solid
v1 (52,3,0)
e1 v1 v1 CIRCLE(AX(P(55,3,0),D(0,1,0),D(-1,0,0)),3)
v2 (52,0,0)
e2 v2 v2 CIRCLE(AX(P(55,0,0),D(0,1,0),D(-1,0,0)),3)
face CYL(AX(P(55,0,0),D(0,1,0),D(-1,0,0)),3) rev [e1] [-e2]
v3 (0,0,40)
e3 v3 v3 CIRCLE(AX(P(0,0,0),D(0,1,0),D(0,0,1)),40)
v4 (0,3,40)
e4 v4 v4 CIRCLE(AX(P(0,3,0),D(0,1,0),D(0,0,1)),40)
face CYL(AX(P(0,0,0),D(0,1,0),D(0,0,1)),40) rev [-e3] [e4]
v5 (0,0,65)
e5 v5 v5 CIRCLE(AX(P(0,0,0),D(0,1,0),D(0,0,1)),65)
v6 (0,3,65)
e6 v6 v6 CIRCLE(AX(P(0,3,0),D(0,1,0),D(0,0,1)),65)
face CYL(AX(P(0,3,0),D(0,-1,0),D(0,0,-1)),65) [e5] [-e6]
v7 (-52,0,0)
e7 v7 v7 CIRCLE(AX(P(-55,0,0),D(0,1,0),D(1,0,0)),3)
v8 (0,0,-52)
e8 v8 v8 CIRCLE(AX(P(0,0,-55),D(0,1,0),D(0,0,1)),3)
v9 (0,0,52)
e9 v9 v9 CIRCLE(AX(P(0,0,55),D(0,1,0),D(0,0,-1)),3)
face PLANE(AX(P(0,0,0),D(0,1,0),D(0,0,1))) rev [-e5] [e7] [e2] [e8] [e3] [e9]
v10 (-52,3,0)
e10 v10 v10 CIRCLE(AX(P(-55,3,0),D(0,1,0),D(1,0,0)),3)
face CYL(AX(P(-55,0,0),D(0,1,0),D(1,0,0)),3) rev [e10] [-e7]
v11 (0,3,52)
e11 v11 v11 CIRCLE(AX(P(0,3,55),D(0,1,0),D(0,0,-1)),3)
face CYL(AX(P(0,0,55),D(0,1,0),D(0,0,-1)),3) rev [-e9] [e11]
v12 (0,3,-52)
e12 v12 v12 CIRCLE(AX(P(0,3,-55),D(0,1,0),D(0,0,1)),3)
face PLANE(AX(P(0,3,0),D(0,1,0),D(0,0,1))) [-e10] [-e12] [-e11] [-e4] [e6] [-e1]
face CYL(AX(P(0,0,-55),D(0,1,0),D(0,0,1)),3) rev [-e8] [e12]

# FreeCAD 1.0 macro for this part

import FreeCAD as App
import Part
import Sketcher

V = App.Vector
Q = App.Units.Quantity

doc = App.newDocument("Part")
body = doc.addObject("PartDesign::Body", "Body")

# Sketch on XZ plane
sketch1 = body.newObject("Sketcher::SketchObject", "Sketch")
sketch1.AttachmentSupport = (doc.getObject("XZ_Plane"), [""])
sketch1.MapMode = "FlatFace"
sketch1.addGeometry(Part.Circle(V(0, 0, 0), V(0, 0, 1), 65), False)
sketch1.addConstraint(Sketcher.Constraint("Coincident", 0, 3, -1, 1))
sketch1.addConstraint(Sketcher.Constraint("Diameter", 0, Q("130 mm")))
pad1 = body.newObject("PartDesign::Pad", "Pad")
pad1.Profile = sketch1
pad1.Length = 3
pad1.Reversed = True

# Sketch on XZ plane
sketch2 = body.newObject("Sketcher::SketchObject", "Sketch001")
sketch2.AttachmentSupport = (doc.getObject("XZ_Plane"), [""])
sketch2.MapMode = "FlatFace"
sketch2.AttachmentOffset = App.Placement(V(0, 0, -3), App.Rotation())
sketch2.addGeometry(Part.Circle(V(0, -55, 0), V(0, 0, 1), 3), False)
sketch2.addConstraint(Sketcher.Constraint("PointOnObject", 0, 3, -2))
sketch2.addConstraint(Sketcher.Constraint("Diameter", 0, Q("6 mm")))
sketch2.addConstraint(Sketcher.Constraint("DistanceY", 0, 3, -1, 1, Q("55 mm")))
pocket1 = body.newObject("PartDesign::Pocket", "Pocket")
pocket1.Profile = sketch2
pocket1.Type = "ThroughAll"
pocket1.Reversed = True
doc.recompute()

polarpattern = body.newObject("PartDesign::PolarPattern", "PolarPattern")
polarpattern.Originals = [pocket1]
polarpattern.Axis = (doc.getObject("Y_Axis"), [""])
polarpattern.Angle = 360
polarpattern.Occurrences = 4
body.Tip = polarpattern

# Sketch on XZ plane
sketch3 = body.newObject("Sketcher::SketchObject", "Sketch002")
sketch3.AttachmentSupport = (doc.getObject("XZ_Plane"), [""])
sketch3.MapMode = "FlatFace"
sketch3.AttachmentOffset = App.Placement(V(0, 0, -3), App.Rotation())
sketch3.addGeometry(Part.Circle(V(0, 0, 0), V(0, 0, 1), 40), False)
sketch3.addConstraint(Sketcher.Constraint("Coincident", 0, 3, -1, 1))
sketch3.addConstraint(Sketcher.Constraint("Diameter", 0, Q("80 mm")))
pocket2 = body.newObject("PartDesign::Pocket", "Pocket001")
pocket2.Profile = sketch3
pocket2.Type = "ThroughAll"
pocket2.Reversed = True

doc.recompute()
